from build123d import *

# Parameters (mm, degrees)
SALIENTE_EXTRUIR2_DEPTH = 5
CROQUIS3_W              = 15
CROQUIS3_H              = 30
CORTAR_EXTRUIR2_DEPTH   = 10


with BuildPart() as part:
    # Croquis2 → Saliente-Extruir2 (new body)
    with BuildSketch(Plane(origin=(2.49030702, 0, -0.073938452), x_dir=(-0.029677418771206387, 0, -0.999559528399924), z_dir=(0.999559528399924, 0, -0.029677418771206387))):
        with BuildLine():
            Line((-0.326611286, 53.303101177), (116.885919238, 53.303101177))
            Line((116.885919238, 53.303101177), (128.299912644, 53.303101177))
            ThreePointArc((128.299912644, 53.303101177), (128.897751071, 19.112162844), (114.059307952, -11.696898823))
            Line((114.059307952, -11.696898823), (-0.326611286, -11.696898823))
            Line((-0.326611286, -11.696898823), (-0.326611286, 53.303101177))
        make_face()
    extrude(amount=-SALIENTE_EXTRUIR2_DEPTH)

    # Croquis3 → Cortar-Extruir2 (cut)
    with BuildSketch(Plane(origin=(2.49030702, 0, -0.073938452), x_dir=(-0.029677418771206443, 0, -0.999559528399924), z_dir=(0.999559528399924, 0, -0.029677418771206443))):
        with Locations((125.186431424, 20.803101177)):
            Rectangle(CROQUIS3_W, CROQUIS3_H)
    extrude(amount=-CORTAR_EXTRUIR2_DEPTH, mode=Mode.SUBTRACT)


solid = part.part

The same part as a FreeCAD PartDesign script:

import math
import FreeCAD as App
import Part
import Sketcher

V = App.Vector
Q = App.Units.Quantity


def add_polygon(sketch, points):
    """Adds a closed chain of lines whose ends are joined by coincident constraints."""
    first, n = sketch.GeometryCount, len(points)
    for a, b in zip(points, points[1:] + points[:1]):
        sketch.addGeometry(Part.LineSegment(App.Vector(*a, 0), App.Vector(*b, 0)), False)
    for i in range(n):
        sketch.addConstraint(Sketcher.Constraint("Coincident", first + i, 2, first + (i + 1) % n, 1))

doc = App.newDocument("Part")
body = doc.addObject("PartDesign::Body", "Body")

# Sketch on an angled plane
sketch1 = body.newObject("Sketcher::SketchObject", "Sketch")
sketch1.Placement = App.Placement(V(2.490307, 0, -0.073938), App.Rotation(V(-0.029677419, 0, -0.999559528), V(0, 0.999999999, 0), V(0.999559528, 0, -0.029677419), "ZXY"))
sketch1.addGeometry(Part.LineSegment(V(128, 53, 0), V(0, 53, 0)), False)
sketch1.addGeometry(Part.LineSegment(V(0, 53, 0), V(0, -12, 0)), False)
sketch1.addGeometry(Part.LineSegment(V(0, -12, 0), V(114, -12, 0)), False)
sketch1.addGeometry(Part.ArcOfCircle(Part.Circle(V(57, 35, 0), V(0, 0, 1), 74), math.radians(-39), math.radians(14)), False)
sketch1.addConstraint(Sketcher.Constraint("Coincident", 0, 2, 1, 1))
sketch1.addConstraint(Sketcher.Constraint("Coincident", 1, 2, 2, 1))
sketch1.addConstraint(Sketcher.Constraint("Coincident", 2, 2, 3, 1))
sketch1.addConstraint(Sketcher.Constraint("Coincident", 3, 2, 0, 1))
sketch1.addConstraint(Sketcher.Constraint("Horizontal", 0))
sketch1.addConstraint(Sketcher.Constraint("Vertical", 1))
sketch1.addConstraint(Sketcher.Constraint("Horizontal", 2))
sketch1.addConstraint(Sketcher.Constraint("Radius", 3, Q("74 mm")))
sketch1.addConstraint(Sketcher.Constraint("DistanceY", 1, 2, 1, 1, Q("65 mm")))
sketch1.addConstraint(Sketcher.Constraint("DistanceX", 2, 1, 2, 2, Q("114.385919 mm")))
sketch1.addConstraint(Sketcher.Constraint("DistanceY", -1, 1, 0, 2, Q("53.303101 mm")))
sketch1.addConstraint(Sketcher.Constraint("DistanceX", 0, 2, 0, 1, Q("128.626524 mm")))
sketch1.addConstraint(Sketcher.Constraint("DistanceX", 0, 2, -1, 1, Q("0.326611 mm")))
pad1 = body.newObject("PartDesign::Pad", "Pad")
pad1.Profile = sketch1
pad1.Length = 5
pad1.Reversed = True

# Sketch on an angled plane
sketch2 = body.newObject("Sketcher::SketchObject", "Sketch001")
sketch2.Placement = App.Placement(V(2.490307, 0, -0.073938), App.Rotation(V(-0.029677419, 0, -0.999559528), V(0, 0.999999999, 0), V(0.999559528, 0, -0.029677419), "ZXY"))
add_polygon(sketch2, [(118, 36), (118, 6), (133, 6), (133, 36)])  # lines 0-3
sketch2.addConstraint(Sketcher.Constraint("Vertical", 0))
sketch2.addConstraint(Sketcher.Constraint("Horizontal", 1))
sketch2.addConstraint(Sketcher.Constraint("Vertical", 2))
sketch2.addConstraint(Sketcher.Constraint("Horizontal", 3))
sketch2.addConstraint(Sketcher.Constraint("DistanceX", 1, 1, 1, 2, Q("15 mm")))
sketch2.addConstraint(Sketcher.Constraint("DistanceY", 0, 2, 0, 1, Q("30 mm")))
sketch2.addConstraint(Sketcher.Constraint("DistanceY", -1, 1, 0, 2, Q("5.803101 mm")))
sketch2.addConstraint(Sketcher.Constraint("DistanceX", -1, 1, 0, 2, Q("117.686431 mm")))
pocket1 = body.newObject("PartDesign::Pocket", "Pocket")
pocket1.Profile = sketch2
pocket1.Length = 10

doc.recompute()
